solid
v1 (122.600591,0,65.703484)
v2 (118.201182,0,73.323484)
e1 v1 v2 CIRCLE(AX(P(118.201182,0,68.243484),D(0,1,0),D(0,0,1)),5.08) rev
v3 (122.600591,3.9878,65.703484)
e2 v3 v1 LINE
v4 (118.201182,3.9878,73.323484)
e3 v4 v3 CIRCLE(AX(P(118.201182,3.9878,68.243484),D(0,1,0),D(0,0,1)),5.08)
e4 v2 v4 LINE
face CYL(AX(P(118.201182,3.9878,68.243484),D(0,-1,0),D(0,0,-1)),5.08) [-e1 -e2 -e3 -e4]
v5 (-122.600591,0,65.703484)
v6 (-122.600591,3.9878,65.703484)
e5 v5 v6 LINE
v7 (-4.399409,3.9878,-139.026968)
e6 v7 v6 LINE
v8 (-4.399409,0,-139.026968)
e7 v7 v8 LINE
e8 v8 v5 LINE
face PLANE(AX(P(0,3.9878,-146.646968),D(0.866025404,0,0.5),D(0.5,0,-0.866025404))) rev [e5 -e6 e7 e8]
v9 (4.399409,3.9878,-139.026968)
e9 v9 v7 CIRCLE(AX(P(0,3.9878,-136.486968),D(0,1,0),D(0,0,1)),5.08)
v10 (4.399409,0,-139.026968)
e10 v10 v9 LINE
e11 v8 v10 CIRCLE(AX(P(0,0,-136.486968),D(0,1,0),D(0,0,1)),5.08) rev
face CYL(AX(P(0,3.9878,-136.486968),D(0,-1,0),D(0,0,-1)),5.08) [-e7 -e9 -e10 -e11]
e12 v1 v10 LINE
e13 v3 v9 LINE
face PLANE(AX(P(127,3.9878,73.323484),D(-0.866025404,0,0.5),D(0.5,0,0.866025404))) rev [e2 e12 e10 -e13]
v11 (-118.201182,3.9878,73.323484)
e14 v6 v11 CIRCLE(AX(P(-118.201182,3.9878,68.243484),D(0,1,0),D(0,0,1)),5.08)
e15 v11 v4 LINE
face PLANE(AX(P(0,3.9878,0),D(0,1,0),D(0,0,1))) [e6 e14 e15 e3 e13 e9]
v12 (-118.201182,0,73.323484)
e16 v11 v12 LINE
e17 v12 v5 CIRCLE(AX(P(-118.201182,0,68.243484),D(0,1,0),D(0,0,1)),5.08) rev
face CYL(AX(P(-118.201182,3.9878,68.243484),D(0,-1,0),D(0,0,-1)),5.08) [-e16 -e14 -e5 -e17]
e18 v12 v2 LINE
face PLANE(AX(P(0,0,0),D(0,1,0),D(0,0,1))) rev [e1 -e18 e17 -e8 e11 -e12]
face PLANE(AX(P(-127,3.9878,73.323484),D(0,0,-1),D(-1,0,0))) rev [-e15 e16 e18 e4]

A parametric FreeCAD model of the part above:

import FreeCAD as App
import Part
import Sketcher

V = App.Vector
Q = App.Units.Quantity


def edges_at(feature, points):
    """Names of the edges that pass closest to the given points."""
    edges = feature.Shape.Edges
    near = lambda p: min(range(len(edges)), key=lambda i: edges[i].distToShape(Part.Vertex(*p))[0])
    return sorted({f"Edge{near(p) + 1}" for p in points})

doc = App.newDocument("Part")
body = doc.addObject("PartDesign::Body", "Body")

# Sketch on XZ plane
sketch1 = body.newObject("Sketcher::SketchObject", "Sketch")
sketch1.AttachmentSupport = (doc.getObject("XZ_Plane"), [""])
sketch1.MapMode = "FlatFace"
sketch1.addGeometry([
    Part.LineSegment(V(0, -147, 0), V(-127, 73, 0)),
    Part.LineSegment(V(-127, 73, 0), V(127, 73, 0)),
    Part.LineSegment(V(127, 73, 0), V(0, -147, 0)),
], False)
sketch1.addConstraint([
    Sketcher.Constraint("Coincident", 0, 2, 1, 1),
    Sketcher.Constraint("Coincident", 1, 2, 2, 1),
    Sketcher.Constraint("Coincident", 2, 2, 0, 1),
    Sketcher.Constraint("Horizontal", 1),
    Sketcher.Constraint("PointOnObject", 2, 2, -2),
    Sketcher.Constraint("Equal", 0, 2),
    Sketcher.Constraint("DistanceX", 1, 1, 1, 2, Q("10 in")),
    Sketcher.Constraint("Distance", 0, Q("10 in")),
    Sketcher.Constraint("DistanceY", 2, 2, -1, 1, Q("146.646968 mm")),
])
pad1 = body.newObject("PartDesign::Pad", "Pad")
pad1.Profile = sketch1
pad1.Length = Q("0.157 in")
pad1.Reversed = True
doc.recompute()

fillet = body.newObject("PartDesign::Fillet", "Fillet")
fillet.Base = (pad1, edges_at(pad1, [(127, 1.994, 73.323), (-127, 1.994, 73.323), (0, 1.994, -146.647)]))
fillet.Radius = Q("0.2 in")

doc.recompute()
